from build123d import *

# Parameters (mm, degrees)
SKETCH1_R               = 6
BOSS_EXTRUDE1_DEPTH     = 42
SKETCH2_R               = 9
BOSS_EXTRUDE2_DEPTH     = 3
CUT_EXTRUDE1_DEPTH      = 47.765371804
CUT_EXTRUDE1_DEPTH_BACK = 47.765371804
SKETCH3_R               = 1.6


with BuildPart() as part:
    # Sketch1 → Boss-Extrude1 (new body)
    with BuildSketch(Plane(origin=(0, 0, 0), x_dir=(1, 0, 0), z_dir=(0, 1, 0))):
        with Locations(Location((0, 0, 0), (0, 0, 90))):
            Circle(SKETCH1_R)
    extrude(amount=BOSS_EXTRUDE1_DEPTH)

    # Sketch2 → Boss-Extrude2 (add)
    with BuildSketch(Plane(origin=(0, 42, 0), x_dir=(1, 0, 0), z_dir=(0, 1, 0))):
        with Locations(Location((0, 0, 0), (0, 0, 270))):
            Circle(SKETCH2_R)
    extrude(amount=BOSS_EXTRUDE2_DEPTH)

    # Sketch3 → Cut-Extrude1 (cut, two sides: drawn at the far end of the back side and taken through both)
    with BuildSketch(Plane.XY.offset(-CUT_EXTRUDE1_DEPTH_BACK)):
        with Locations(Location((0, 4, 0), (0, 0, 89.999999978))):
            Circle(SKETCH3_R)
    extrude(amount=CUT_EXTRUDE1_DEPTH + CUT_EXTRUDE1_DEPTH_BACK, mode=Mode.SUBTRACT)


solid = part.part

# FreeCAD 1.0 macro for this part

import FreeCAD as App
import Part
import Sketcher

V = App.Vector
Q = App.Units.Quantity

doc = App.newDocument("Part")
params = doc.addObject("Spreadsheet::Sheet", "Params")
for row, (alias, value) in enumerate([
    ("sketch1_diameter", "12 mm"),
    ("pad1_length", "42 mm"),
    ("sketch2_diameter", "18 mm"),
    ("pad2_length", "3 mm"),
    ("sketch3_diameter", "3.2 mm"),
], start=1):
    params.set(f"A{row}", alias)
    params.set(f"B{row}", "=" + value)
    params.setAlias(f"B{row}", alias)

body = doc.addObject("PartDesign::Body", "Body")

# Sketch on XZ plane
sketch1 = doc.addObject("Sketcher::SketchObject", "Sketch")
body.addObject(sketch1)
sketch1.AttachmentSupport = (doc.XZ_Plane, [""])
sketch1.MapMode = "FlatFace"
sketch1.addGeometry(Part.Circle(V(0, 0, 0), V(0, 0, 1), 6), False)
sketch1.addConstraint(Sketcher.Constraint("Coincident", 0, 3, -1, 1))
sketch1.addConstraint(Sketcher.Constraint("Diameter", 0, Q("12 mm")))
sketch1.setExpression("Constraints[1]", "Params.sketch1_diameter")
pad1 = doc.addObject("PartDesign::Pad", "Pad")
body.addObject(pad1)
pad1.Profile = sketch1
pad1.setExpression("Length", "Params.pad1_length")
pad1.Reversed = True

# Sketch on XZ plane
sketch2 = doc.addObject("Sketcher::SketchObject", "Sketch001")
body.addObject(sketch2)
sketch2.AttachmentSupport = (doc.XZ_Plane, [""])
sketch2.MapMode = "FlatFace"
sketch2.AttachmentOffset = App.Placement(V(0, 0, -42), App.Rotation())
sketch2.addGeometry(Part.Circle(V(0, 0, 0), V(0, 0, 1), 9), False)
sketch2.addConstraint(Sketcher.Constraint("Coincident", 0, 3, -1, 1))
sketch2.addConstraint(Sketcher.Constraint("Diameter", 0, Q("18 mm")))
sketch2.setExpression("Constraints[1]", "Params.sketch2_diameter")
pad2 = doc.addObject("PartDesign::Pad", "Pad001")
body.addObject(pad2)
pad2.Profile = sketch2
pad2.setExpression("Length", "Params.pad2_length")
pad2.Reversed = True

# Sketch on XY plane
sketch3 = doc.addObject("Sketcher::SketchObject", "Sketch002")
body.addObject(sketch3)
sketch3.AttachmentSupport = (doc.XY_Plane, [""])
sketch3.MapMode = "FlatFace"
sketch3.addGeometry(Part.Circle(V(0, 4, 0), V(0, 0, 1), 1.6), False)
sketch3.addConstraint(Sketcher.Constraint("PointOnObject", 0, 3, -2))
sketch3.addConstraint(Sketcher.Constraint("Diameter", 0, Q("3.2 mm")))
sketch3.addConstraint(Sketcher.Constraint("DistanceY", -1, 1, 0, 3, Q("4 mm")))
sketch3.setExpression("Constraints[1]", "Params.sketch3_diameter")
pocket1 = doc.addObject("PartDesign::Pocket", "Pocket")
body.addObject(pocket1)
pocket1.Profile = sketch3
pocket1.Type = "ThroughAll"
pocket1.Midplane = True

doc.recompute()
